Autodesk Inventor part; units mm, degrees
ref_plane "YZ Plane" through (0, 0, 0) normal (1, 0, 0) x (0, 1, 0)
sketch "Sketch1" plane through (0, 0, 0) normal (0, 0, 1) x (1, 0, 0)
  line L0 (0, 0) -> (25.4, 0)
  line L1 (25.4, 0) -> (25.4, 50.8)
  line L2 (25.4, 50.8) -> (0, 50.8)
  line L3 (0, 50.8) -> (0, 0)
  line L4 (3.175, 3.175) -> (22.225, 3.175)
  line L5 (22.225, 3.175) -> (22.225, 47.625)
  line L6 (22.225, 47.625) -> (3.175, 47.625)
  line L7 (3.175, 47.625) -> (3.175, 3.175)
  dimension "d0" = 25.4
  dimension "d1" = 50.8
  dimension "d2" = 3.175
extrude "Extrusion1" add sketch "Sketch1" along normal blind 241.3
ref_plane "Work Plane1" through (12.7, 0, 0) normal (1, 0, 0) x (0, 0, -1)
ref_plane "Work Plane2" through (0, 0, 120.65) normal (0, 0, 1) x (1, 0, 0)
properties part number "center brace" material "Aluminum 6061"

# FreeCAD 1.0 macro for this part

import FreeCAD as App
import Part
import Sketcher
Q = App.Units.Quantity

doc = App.newDocument("Part")
body = doc.addObject("PartDesign::Body", "Body")

sketch1 = body.newObject("Sketcher::SketchObject", "Sketch")
sketch1.AttachmentSupport = (doc.getObject("XY_Plane"), [""])
sketch1.MapMode = "FlatFace"
sketch1.addGeometry([
    Part.LineSegment(App.Vector(0, 51, 0), App.Vector(0, 0, 0)),
    Part.LineSegment(App.Vector(0, 0, 0), App.Vector(25, 0, 0)),
    Part.LineSegment(App.Vector(25, 0, 0), App.Vector(25, 51, 0)),
    Part.LineSegment(App.Vector(25, 51, 0), App.Vector(0, 51, 0)),
    Part.LineSegment(App.Vector(22, 3, 0), App.Vector(3, 3, 0)),
    Part.LineSegment(App.Vector(3, 3, 0), App.Vector(3, 48, 0)),
    Part.LineSegment(App.Vector(3, 48, 0), App.Vector(22, 48, 0)),
    Part.LineSegment(App.Vector(22, 48, 0), App.Vector(22, 3, 0)),
], False)
sketch1.addConstraint([
    Sketcher.Constraint("Coincident", 0, 2, 1, 1),
    Sketcher.Constraint("Coincident", 1, 2, 2, 1),
    Sketcher.Constraint("Coincident", 2, 2, 3, 1),
    Sketcher.Constraint("Coincident", 3, 2, 0, 1),
    Sketcher.Constraint("Coincident", 4, 2, 5, 1),
    Sketcher.Constraint("Coincident", 5, 2, 6, 1),
    Sketcher.Constraint("Coincident", 6, 2, 7, 1),
    Sketcher.Constraint("Coincident", 7, 2, 4, 1),
    Sketcher.Constraint("Vertical", 0),
    Sketcher.Constraint("Horizontal", 1),
    Sketcher.Constraint("Vertical", 2),
    Sketcher.Constraint("Horizontal", 3),
    Sketcher.Constraint("Horizontal", 4),
    Sketcher.Constraint("Vertical", 5),
    Sketcher.Constraint("Horizontal", 6),
    Sketcher.Constraint("Vertical", 7),
    Sketcher.Constraint("Coincident", 0, 2, -1, 1),
    Sketcher.Constraint("DistanceX", 1, 1, 1, 2, Q("1 in")),
    Sketcher.Constraint("DistanceY", 0, 2, 0, 1, Q("2 in")),
    Sketcher.Constraint("DistanceX", -1, 1, 4, 2, Q("0.125 in")),
    Sketcher.Constraint("DistanceY", -1, 1, 4, 2, Q("0.125 in")),
    Sketcher.Constraint("DistanceY", 5, 2, 3, 2, Q("0.125 in")),
    Sketcher.Constraint("DistanceX", 6, 2, 2, 2, Q("0.125 in")),
])
pad1 = body.newObject("PartDesign::Pad", "Pad")
pad1.Profile = sketch1
pad1.Length = Q("9.5 in")

doc.recompute()
